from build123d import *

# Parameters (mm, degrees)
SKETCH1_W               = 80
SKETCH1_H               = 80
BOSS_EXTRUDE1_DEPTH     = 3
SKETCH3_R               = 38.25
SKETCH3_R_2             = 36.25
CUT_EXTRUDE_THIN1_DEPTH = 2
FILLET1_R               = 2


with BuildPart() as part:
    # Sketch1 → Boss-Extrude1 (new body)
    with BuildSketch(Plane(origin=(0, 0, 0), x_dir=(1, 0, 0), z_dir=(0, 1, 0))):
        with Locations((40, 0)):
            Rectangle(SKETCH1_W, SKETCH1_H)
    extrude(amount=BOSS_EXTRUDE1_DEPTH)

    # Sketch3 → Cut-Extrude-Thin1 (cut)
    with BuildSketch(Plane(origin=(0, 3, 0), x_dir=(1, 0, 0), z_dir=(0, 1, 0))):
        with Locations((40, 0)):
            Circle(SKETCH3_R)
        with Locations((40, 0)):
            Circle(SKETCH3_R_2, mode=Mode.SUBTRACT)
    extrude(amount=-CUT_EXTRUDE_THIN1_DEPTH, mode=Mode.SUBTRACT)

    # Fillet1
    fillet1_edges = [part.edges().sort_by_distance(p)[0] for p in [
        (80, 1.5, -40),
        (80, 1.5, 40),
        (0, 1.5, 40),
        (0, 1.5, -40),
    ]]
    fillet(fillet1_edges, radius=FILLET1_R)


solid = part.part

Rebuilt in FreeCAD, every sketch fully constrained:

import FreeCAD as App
import Part
import Sketcher

V = App.Vector


def edges_at(feature, points):
    """Names of the edges that pass closest to the given points."""
    edges = feature.Shape.Edges
    near = lambda p: min(range(len(edges)), key=lambda i: edges[i].distToShape(Part.Vertex(*p))[0])
    return sorted({f"Edge{near(p) + 1}" for p in points})

doc = App.newDocument("Part")
params = doc.addObject("Spreadsheet::Sheet", "Params")
for row, (alias, value) in enumerate([
    ("sketch1_width", "80 mm"),
    ("pad1_length", "3 mm"),
    ("sketch2_diameter", "76.5 mm"),
    ("sketch2_diameter2", "72.5 mm"),
    ("pocket1_length", "2 mm"),
    ("fillet_radius", "2 mm"),
], start=1):
    params.set(f"A{row}", alias)
    params.set(f"B{row}", "=" + value)
    params.setAlias(f"B{row}", alias)

body = doc.addObject("PartDesign::Body", "Body")

# Sketch on XZ plane
sketch1 = doc.addObject("Sketcher::SketchObject", "Sketch")
body.addObject(sketch1)
sketch1.AttachmentSupport = (doc.XZ_Plane, [""])
sketch1.MapMode = "FlatFace"
sketch1.addGeometry([
    Part.LineSegment(V(0, -40, 0), V(0, 40, 0)),
    Part.LineSegment(V(0, 40, 0), V(80, 40, 0)),
    Part.LineSegment(V(80, 40, 0), V(80, -40, 0)),
    Part.LineSegment(V(80, -40, 0), V(0, -40, 0)),
], False)
sketch1.addConstraint([
    Sketcher.Constraint("Coincident", 0, 2, 1, 1),
    Sketcher.Constraint("Coincident", 1, 2, 2, 1),
    Sketcher.Constraint("Coincident", 2, 2, 3, 1),
    Sketcher.Constraint("Coincident", 3, 2, 0, 1),
    Sketcher.Constraint("Vertical", 0),
    Sketcher.Constraint("Horizontal", 1),
    Sketcher.Constraint("Vertical", 2),
    Sketcher.Constraint("Horizontal", 3),
    Sketcher.Constraint("Symmetric", 0, 2, 3, 2, -1, 1),
    Sketcher.Constraint("Equal", 3, 0),
    Sketcher.Constraint("DistanceX", 1, 1, 1, 2, 80.0),
])
sketch1.setExpression("Constraints[10]", "Params.sketch1_width")
pad1 = doc.addObject("PartDesign::Pad", "Pad")
body.addObject(pad1)
pad1.Profile = sketch1
pad1.setExpression("Length", "Params.pad1_length")
pad1.Reversed = True

# Sketch on XZ plane
sketch2 = doc.addObject("Sketcher::SketchObject", "Sketch001")
body.addObject(sketch2)
sketch2.AttachmentSupport = (doc.XZ_Plane, [""])
sketch2.MapMode = "FlatFace"
sketch2.AttachmentOffset = App.Placement(V(0, 0, -3), App.Rotation())
sketch2.addGeometry([
    Part.Circle(V(40, 0, 0), V(0, 0, 1), 38),
    Part.Circle(V(40, 0, 0), V(0, 0, 1), 36),
], False)
sketch2.addConstraint([
    Sketcher.Constraint("Coincident", 1, 3, 0, 3),
    Sketcher.Constraint("PointOnObject", 0, 3, -1),
    Sketcher.Constraint("Diameter", 0, 76.5),
    Sketcher.Constraint("Diameter", 1, 72.5),
    Sketcher.Constraint("DistanceX", -1, 1, 0, 3, 40.0),
])
sketch2.setExpression("Constraints[2]", "Params.sketch2_diameter")
sketch2.setExpression("Constraints[3]", "Params.sketch2_diameter2")
pocket1 = doc.addObject("PartDesign::Pocket", "Pocket")
body.addObject(pocket1)
pocket1.Profile = sketch2
pocket1.setExpression("Length", "Params.pocket1_length")
pocket1.Reversed = True
doc.recompute()

fillet = doc.addObject("PartDesign::Fillet", "Fillet")
body.addObject(fillet)
fillet.Base = (pocket1, edges_at(pocket1, [
    (80, 1.5, -40),
    (80, 1.5, 40),
    (0, 1.5, 40),
    (0, 1.5, -40),
]))
fillet.setExpression("Radius", "Params.fillet_radius")

doc.recompute()
